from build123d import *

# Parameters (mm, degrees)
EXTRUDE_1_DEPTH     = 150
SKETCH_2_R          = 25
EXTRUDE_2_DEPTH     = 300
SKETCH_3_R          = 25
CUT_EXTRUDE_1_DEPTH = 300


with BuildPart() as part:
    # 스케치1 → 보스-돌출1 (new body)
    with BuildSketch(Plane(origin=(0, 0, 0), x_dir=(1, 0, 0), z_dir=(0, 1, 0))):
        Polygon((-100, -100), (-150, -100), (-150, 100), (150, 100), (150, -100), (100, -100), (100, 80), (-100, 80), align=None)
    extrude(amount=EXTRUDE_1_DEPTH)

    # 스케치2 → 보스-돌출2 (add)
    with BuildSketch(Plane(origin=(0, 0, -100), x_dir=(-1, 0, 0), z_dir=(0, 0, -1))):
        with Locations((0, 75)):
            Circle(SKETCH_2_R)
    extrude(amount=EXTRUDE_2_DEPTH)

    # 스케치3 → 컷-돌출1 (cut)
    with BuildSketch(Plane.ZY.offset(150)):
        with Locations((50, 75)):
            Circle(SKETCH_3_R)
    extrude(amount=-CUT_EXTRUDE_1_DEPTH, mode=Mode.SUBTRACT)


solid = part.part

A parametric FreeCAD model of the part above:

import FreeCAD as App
import Part
import Sketcher
Q = App.Units.Quantity


def add_polygon(sketch, points):
    """Adds a closed chain of lines whose ends are joined by coincident constraints."""
    first, n = sketch.GeometryCount, len(points)
    for a, b in zip(points, points[1:] + points[:1]):
        sketch.addGeometry(Part.LineSegment(App.Vector(*a, 0), App.Vector(*b, 0)), False)
    for i in range(n):
        sketch.addConstraint(Sketcher.Constraint("Coincident", first + i, 2, first + (i + 1) % n, 1))

doc = App.newDocument("Part")
body = doc.addObject("PartDesign::Body", "Body")

sketch1 = body.newObject("Sketcher::SketchObject", "Sketch")
sketch1.AttachmentSupport = (doc.getObject("XZ_Plane"), [""])
sketch1.MapMode = "FlatFace"
add_polygon(sketch1, [(-150, 100), (-100, 100), (-100, -80), (100, -80), (100, 100), (150, 100), (150, -100), (-150, -100)])
sketch1.addConstraint([
    Sketcher.Constraint("Horizontal", 0),
    Sketcher.Constraint("Vertical", 1),
    Sketcher.Constraint("Horizontal", 2),
    Sketcher.Constraint("Vertical", 3),
    Sketcher.Constraint("Horizontal", 4),
    Sketcher.Constraint("Vertical", 5),
    Sketcher.Constraint("Horizontal", 6),
    Sketcher.Constraint("Vertical", 7),
    Sketcher.Constraint("Symmetric", 4, 2, 6, 2, -1, 1),
    Sketcher.Constraint("Symmetric", 0, 2, 3, 2, -2),
    Sketcher.Constraint("Equal", 2, 5),
    Sketcher.Constraint("DistanceX", 0, 1, 0, 2, Q("50 mm")),
    Sketcher.Constraint("DistanceX", 2, 1, 2, 2, Q("200 mm")),
    Sketcher.Constraint("DistanceY", 1, 2, 1, 1, Q("180 mm")),
])
pad1 = body.newObject("PartDesign::Pad", "Pad")
pad1.Profile = sketch1
pad1.Length = 150
pad1.Reversed = True

sketch2 = body.newObject("Sketcher::SketchObject", "Sketch001")
sketch2.AttachmentSupport = (doc.getObject("XY_Plane"), [""])
sketch2.MapMode = "FlatFace"
sketch2.AttachmentOffset = App.Placement(App.Vector(0, 0, -100), App.Rotation())
sketch2.addGeometry(Part.Circle(App.Vector(0, 75, 0), App.Vector(0, 0, 1), 25), False)
sketch2.addConstraint([
    Sketcher.Constraint("PointOnObject", 0, 3, -2),
    Sketcher.Constraint("Diameter", 0, Q("50 mm")),
    Sketcher.Constraint("DistanceY", -1, 1, 0, 3, Q("75 mm")),
])
pad2 = body.newObject("PartDesign::Pad", "Pad001")
pad2.Profile = sketch2
pad2.Length = 300
pad2.Reversed = True

sketch3 = body.newObject("Sketcher::SketchObject", "Sketch002")
sketch3.AttachmentSupport = (doc.getObject("YZ_Plane"), [""])
sketch3.MapMode = "FlatFace"
sketch3.AttachmentOffset = App.Placement(App.Vector(0, 0, -150), App.Rotation())
sketch3.addGeometry(Part.Circle(App.Vector(75, 50, 0), App.Vector(0, 0, 1), 25), False)
sketch3.addConstraint([
    Sketcher.Constraint("Diameter", 0, Q("50 mm")),
    Sketcher.Constraint("DistanceX", -1, 1, 0, 3, Q("75 mm")),
    Sketcher.Constraint("DistanceY", -1, 1, 0, 3, Q("50 mm")),
])
pocket1 = body.newObject("PartDesign::Pocket", "Pocket")
pocket1.Profile = sketch3
pocket1.Length = 300
pocket1.Reversed = True

doc.recompute()
